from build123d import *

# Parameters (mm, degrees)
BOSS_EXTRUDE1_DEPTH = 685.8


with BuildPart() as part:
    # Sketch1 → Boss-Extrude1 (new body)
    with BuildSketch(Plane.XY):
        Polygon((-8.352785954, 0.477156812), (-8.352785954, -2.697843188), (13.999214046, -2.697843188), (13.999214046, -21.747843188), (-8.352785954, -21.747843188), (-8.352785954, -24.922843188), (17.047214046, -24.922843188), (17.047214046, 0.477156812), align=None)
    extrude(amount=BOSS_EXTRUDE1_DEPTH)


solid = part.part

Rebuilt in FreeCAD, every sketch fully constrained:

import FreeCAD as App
import Part
import Sketcher
Q = App.Units.Quantity

doc = App.newDocument("Part")
body = doc.addObject("PartDesign::Body", "Body")

sketch1 = doc.addObject("Sketcher::SketchObject", "Sketch")
body.addObject(sketch1)
sketch1.AttachmentSupport = (doc.XY_Plane, [""])
sketch1.MapMode = "FlatFace"
sketch1.addGeometry([
    Part.LineSegment(App.Vector(-8.352786, 0.477157, 0), App.Vector(-8.352786, -2.697843, 0)),
    Part.LineSegment(App.Vector(-8.352786, -2.697843, 0), App.Vector(13.999214, -2.697843, 0)),
    Part.LineSegment(App.Vector(13.999214, -2.697843, 0), App.Vector(13.999214, -21.747843, 0)),
    Part.LineSegment(App.Vector(13.999214, -21.747843, 0), App.Vector(-8.352786, -21.747843, 0)),
    Part.LineSegment(App.Vector(-8.352786, -21.747843, 0), App.Vector(-8.352786, -24.922843, 0)),
    Part.LineSegment(App.Vector(-8.352786, -24.922843, 0), App.Vector(17.047214, -24.922843, 0)),
    Part.LineSegment(App.Vector(17.047214, -24.922843, 0), App.Vector(17.047214, 0.477157, 0)),
    Part.LineSegment(App.Vector(17.047214, 0.477157, 0), App.Vector(-8.352786, 0.477157, 0)),
], False)
sketch1.addConstraint([
    Sketcher.Constraint("Coincident", 0, 2, 1, 1),
    Sketcher.Constraint("Coincident", 1, 2, 2, 1),
    Sketcher.Constraint("Coincident", 2, 2, 3, 1),
    Sketcher.Constraint("Coincident", 3, 2, 4, 1),
    Sketcher.Constraint("Coincident", 4, 2, 5, 1),
    Sketcher.Constraint("Coincident", 5, 2, 6, 1),
    Sketcher.Constraint("Coincident", 6, 2, 7, 1),
    Sketcher.Constraint("Coincident", 7, 2, 0, 1),
    Sketcher.Constraint("Vertical", 0),
    Sketcher.Constraint("Horizontal", 1),
    Sketcher.Constraint("Vertical", 2),
    Sketcher.Constraint("Horizontal", 3),
    Sketcher.Constraint("Vertical", 4),
    Sketcher.Constraint("Horizontal", 5),
    Sketcher.Constraint("Vertical", 6),
    Sketcher.Constraint("Horizontal", 7),
    Sketcher.Constraint("Vertical", 0, 2, 3, 2),
    Sketcher.Constraint("Equal", 0, 4),
    Sketcher.Constraint("Equal", 7, 6),
    Sketcher.Constraint("DistanceX", 5, 1, 5, 2, Q("1 in")),
    Sketcher.Constraint("DistanceX", 1, 1, 1, 2, Q("0.88 in")),
    Sketcher.Constraint("DistanceY", 2, 2, 2, 1, Q("0.75 in")),
    Sketcher.Constraint("DistanceX", 0, 2, -1, 1, Q("8.352786 mm")),
    Sketcher.Constraint("DistanceY", 0, 2, -1, 1, Q("2.697843 mm")),
])
pad1 = doc.addObject("PartDesign::Pad", "Pad")
body.addObject(pad1)
pad1.Profile = sketch1
pad1.Length = Q("27 in")

doc.recompute()
